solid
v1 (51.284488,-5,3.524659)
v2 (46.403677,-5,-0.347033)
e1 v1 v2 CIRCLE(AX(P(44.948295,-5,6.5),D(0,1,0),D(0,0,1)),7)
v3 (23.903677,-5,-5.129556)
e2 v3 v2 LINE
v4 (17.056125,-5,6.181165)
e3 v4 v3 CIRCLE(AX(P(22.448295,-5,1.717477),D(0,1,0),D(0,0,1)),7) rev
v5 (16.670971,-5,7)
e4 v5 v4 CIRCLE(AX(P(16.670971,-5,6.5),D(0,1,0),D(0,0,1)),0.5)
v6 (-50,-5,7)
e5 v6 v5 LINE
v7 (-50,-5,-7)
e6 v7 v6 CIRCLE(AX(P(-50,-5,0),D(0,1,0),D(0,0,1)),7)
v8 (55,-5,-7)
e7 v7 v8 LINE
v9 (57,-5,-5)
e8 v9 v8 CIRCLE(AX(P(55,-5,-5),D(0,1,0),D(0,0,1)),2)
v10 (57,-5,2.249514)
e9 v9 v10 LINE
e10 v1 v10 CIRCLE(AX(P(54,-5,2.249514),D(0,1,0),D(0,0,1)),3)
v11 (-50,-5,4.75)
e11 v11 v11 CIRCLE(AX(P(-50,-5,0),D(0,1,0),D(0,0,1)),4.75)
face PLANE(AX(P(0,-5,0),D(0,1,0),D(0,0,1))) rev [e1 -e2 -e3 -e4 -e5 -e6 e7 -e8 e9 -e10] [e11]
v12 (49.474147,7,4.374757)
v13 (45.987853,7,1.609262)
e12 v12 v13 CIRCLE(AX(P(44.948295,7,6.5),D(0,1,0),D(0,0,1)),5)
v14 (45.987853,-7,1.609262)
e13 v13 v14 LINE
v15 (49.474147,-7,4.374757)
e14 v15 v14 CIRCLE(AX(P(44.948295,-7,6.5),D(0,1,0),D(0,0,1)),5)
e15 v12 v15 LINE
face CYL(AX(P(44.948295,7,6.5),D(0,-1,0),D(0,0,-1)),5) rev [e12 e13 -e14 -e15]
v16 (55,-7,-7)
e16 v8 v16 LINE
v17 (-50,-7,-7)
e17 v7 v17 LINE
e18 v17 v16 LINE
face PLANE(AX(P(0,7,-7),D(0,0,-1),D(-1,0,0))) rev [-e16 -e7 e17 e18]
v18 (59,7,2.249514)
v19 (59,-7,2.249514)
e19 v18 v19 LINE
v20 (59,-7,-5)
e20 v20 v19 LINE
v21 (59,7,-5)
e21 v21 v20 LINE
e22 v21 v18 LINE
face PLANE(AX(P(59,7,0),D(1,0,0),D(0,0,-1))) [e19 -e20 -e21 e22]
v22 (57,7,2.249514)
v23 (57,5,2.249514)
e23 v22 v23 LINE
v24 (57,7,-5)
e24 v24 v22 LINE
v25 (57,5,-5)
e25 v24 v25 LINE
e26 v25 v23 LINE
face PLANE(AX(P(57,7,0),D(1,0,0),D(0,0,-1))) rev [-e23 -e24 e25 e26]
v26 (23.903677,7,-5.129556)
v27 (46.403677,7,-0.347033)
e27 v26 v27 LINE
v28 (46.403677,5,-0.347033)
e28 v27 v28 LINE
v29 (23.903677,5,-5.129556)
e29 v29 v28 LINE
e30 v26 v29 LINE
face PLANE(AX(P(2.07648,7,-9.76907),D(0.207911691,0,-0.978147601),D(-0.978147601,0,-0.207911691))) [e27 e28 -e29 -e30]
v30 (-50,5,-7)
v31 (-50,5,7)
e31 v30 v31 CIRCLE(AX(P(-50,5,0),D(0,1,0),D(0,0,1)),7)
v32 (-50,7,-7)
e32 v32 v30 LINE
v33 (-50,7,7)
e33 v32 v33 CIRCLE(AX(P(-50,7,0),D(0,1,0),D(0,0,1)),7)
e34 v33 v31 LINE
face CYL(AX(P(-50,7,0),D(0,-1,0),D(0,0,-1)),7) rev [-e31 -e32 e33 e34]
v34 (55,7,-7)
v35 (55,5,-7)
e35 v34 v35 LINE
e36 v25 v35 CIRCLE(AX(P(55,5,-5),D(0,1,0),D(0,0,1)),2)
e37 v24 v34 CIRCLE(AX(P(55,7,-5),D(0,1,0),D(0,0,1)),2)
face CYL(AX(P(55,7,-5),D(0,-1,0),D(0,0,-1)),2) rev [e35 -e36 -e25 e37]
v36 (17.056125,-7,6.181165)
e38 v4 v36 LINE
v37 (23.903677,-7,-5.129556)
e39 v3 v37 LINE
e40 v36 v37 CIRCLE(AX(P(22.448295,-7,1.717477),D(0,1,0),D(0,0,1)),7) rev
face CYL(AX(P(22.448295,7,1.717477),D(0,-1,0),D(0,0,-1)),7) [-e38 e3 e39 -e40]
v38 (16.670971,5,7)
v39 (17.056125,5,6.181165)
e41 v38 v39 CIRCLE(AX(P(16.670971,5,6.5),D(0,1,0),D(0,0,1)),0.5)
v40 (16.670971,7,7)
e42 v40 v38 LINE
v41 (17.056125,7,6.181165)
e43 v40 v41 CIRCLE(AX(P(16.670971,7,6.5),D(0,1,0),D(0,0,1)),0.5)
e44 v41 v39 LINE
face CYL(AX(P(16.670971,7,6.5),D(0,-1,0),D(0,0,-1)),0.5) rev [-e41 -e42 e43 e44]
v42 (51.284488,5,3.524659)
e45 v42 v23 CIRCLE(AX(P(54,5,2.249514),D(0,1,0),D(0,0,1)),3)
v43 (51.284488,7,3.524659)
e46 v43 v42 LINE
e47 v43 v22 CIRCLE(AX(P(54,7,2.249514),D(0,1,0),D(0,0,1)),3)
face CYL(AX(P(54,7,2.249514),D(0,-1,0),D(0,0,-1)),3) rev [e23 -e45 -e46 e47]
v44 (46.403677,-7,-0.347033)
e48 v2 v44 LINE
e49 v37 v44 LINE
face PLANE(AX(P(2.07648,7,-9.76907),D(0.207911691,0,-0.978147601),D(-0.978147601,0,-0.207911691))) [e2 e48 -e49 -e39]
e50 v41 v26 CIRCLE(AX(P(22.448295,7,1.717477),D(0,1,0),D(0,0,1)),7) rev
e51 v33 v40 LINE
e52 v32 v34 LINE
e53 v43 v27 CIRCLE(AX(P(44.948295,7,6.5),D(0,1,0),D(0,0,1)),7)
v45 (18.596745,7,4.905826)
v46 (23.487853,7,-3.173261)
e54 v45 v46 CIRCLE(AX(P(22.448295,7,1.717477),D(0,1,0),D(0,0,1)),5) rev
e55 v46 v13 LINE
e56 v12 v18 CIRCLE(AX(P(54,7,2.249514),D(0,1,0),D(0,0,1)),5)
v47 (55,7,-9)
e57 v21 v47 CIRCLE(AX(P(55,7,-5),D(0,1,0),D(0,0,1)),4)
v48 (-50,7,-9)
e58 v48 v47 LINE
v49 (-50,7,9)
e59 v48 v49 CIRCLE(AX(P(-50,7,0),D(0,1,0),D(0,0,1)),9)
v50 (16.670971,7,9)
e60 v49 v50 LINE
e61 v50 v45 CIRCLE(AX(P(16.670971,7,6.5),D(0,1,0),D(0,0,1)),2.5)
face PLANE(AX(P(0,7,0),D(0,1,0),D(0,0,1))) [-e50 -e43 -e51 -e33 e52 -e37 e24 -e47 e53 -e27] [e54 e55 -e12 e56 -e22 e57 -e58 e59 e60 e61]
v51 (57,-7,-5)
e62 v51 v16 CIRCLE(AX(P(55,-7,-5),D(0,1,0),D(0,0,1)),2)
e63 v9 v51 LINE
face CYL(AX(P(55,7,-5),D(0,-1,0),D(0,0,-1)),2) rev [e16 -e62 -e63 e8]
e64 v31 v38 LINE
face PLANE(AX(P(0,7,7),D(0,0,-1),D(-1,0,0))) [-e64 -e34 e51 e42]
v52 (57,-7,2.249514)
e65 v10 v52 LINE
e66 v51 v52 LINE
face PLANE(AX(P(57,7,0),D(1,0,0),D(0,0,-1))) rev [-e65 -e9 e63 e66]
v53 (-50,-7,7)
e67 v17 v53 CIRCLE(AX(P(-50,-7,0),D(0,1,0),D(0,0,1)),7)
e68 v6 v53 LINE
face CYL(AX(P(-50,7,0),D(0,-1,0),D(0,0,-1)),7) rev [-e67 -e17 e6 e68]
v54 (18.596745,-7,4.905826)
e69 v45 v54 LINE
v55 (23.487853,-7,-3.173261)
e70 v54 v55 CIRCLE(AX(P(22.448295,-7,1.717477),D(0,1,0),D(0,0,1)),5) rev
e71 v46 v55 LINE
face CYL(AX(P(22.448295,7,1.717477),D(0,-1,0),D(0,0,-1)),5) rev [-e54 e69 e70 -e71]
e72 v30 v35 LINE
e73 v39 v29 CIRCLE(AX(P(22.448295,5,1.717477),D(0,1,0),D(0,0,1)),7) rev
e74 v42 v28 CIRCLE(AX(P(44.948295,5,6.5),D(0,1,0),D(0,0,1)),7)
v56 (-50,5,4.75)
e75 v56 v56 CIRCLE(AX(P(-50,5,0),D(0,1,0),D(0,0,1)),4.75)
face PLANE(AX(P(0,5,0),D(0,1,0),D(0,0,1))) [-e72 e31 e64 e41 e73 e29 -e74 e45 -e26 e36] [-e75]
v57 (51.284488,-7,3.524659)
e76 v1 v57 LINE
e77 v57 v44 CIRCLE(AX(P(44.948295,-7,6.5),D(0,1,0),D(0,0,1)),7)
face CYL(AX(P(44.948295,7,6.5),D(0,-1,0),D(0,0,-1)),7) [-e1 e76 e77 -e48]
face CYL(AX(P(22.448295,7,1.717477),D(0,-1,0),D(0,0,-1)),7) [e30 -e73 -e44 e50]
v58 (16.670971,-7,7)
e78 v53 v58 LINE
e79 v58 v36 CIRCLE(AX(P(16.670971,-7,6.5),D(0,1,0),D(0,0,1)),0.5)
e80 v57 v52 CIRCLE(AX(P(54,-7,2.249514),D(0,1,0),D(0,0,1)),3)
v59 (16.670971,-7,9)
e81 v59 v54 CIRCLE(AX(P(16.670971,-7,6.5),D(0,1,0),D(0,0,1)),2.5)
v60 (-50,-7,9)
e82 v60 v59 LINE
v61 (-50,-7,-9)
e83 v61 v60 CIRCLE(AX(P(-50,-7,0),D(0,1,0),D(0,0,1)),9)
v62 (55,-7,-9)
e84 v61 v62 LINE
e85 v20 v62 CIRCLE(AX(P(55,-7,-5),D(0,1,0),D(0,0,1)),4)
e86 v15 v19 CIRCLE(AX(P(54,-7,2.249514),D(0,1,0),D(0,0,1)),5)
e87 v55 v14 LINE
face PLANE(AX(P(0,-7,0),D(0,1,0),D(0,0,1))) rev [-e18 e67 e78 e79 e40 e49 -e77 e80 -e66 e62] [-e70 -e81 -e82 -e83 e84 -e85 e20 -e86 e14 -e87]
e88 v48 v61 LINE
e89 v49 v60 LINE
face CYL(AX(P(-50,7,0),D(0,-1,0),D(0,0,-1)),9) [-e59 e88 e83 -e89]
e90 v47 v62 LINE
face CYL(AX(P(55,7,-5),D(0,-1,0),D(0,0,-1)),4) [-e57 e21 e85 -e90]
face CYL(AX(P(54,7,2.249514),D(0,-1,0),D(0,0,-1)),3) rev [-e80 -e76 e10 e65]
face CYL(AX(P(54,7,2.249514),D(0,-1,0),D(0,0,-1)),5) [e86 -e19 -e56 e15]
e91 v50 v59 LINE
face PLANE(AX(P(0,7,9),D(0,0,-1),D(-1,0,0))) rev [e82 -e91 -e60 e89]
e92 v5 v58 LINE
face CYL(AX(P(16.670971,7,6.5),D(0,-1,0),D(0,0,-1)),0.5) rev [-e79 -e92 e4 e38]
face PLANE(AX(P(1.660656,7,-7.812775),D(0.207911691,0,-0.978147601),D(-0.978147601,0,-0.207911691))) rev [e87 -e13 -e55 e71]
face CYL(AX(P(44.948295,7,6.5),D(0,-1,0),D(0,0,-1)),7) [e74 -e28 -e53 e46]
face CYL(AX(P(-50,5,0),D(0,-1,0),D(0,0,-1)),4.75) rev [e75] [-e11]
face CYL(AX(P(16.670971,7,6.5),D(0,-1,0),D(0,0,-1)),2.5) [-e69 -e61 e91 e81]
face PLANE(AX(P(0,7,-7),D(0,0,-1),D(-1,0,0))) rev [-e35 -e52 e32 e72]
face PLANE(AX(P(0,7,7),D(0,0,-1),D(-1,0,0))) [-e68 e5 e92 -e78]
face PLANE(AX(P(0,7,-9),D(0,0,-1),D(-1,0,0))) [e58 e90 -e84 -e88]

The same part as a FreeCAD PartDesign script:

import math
import FreeCAD as App
import Part
import Sketcher
Q = App.Units.Quantity

doc = App.newDocument("Part")
body = doc.addObject("PartDesign::Body", "Body")

# Sketch on XZ plane
sketch1 = body.newObject("Sketcher::SketchObject", "Sketch")
sketch1.AttachmentSupport = (doc.getObject("XZ_Plane"), [""])
sketch1.MapMode = "FlatFace"
sketch1.addGeometry(Part.ArcOfCircle(Part.Circle(App.Vector(44.9, 6.5, 0), App.Vector(0, 0, 1), 5), math.radians(-78), math.radians(-25)), False)
sketch1.addGeometry(Part.ArcOfCircle(Part.Circle(App.Vector(54, 2.2, 0), App.Vector(0, 0, 1), 5), math.radians(0), math.radians(155)), False)
sketch1.addGeometry(Part.LineSegment(App.Vector(59, 2.2, 0), App.Vector(59, -5, 0)), False)
sketch1.addGeometry(Part.ArcOfCircle(Part.Circle(App.Vector(55, -5, 0), App.Vector(0, 0, 1), 4), math.radians(-90), math.radians(0)), False)
sketch1.addGeometry(Part.LineSegment(App.Vector(55, -9, 0), App.Vector(-50, -9, 0)), False)
sketch1.addGeometry(Part.ArcOfCircle(Part.Circle(App.Vector(-50, 0, 0), App.Vector(0, 0, 1), 9), math.radians(90), math.radians(270)), False)
sketch1.addGeometry(Part.LineSegment(App.Vector(-50, 9, 0), App.Vector(16.7, 9, 0)), False)
sketch1.addGeometry(Part.ArcOfCircle(Part.Circle(App.Vector(16.7, 6.5, 0), App.Vector(0, 0, 1), 2.5), math.radians(-40), math.radians(90)), False)
sketch1.addGeometry(Part.ArcOfCircle(Part.Circle(App.Vector(22.4, 1.7, 0), App.Vector(0, 0, 1), 5), math.radians(140), math.radians(282)), False)
sketch1.addGeometry(Part.LineSegment(App.Vector(23.5, -3.2, 0), App.Vector(46, 1.6, 0)), False)
sketch1.addGeometry(Part.LineSegment(App.Vector(-50, -7, 0), App.Vector(55, -7, 0)), False)
sketch1.addGeometry(Part.ArcOfCircle(Part.Circle(App.Vector(55, -5, 0), App.Vector(0, 0, 1), 2), math.radians(-90), math.radians(0)), False)
sketch1.addGeometry(Part.LineSegment(App.Vector(57, -5, 0), App.Vector(57, 2.2, 0)), False)
sketch1.addGeometry(Part.ArcOfCircle(Part.Circle(App.Vector(54, 2.2, 0), App.Vector(0, 0, 1), 3), math.radians(0), math.radians(155)), False)
sketch1.addGeometry(Part.ArcOfCircle(Part.Circle(App.Vector(44.9, 6.5, 0), App.Vector(0, 0, 1), 7), math.radians(-78), math.radians(-25)), False)
sketch1.addGeometry(Part.LineSegment(App.Vector(46.4, -0.3, 0), App.Vector(23.9, -5.1, 0)), False)
sketch1.addGeometry(Part.ArcOfCircle(Part.Circle(App.Vector(22.4, 1.7, 0), App.Vector(0, 0, 1), 7), math.radians(140), math.radians(282)), False)
sketch1.addGeometry(Part.ArcOfCircle(Part.Circle(App.Vector(16.7, 6.5, 0), App.Vector(0, 0, 1), 0.5), math.radians(-40), math.radians(90)), False)
sketch1.addGeometry(Part.LineSegment(App.Vector(16.7, 7, 0), App.Vector(-50, 7, 0)), False)
sketch1.addGeometry(Part.ArcOfCircle(Part.Circle(App.Vector(-50, 0, 0), App.Vector(0, 0, 1), 7), math.radians(90), math.radians(270)), False)
sketch1.addConstraint(Sketcher.Constraint("Tangent", 0, 2, 1, 2))
sketch1.addConstraint(Sketcher.Constraint("Tangent", 1, 1, 2, 1))
sketch1.addConstraint(Sketcher.Constraint("Tangent", 2, 2, 3, 2))
sketch1.addConstraint(Sketcher.Constraint("Tangent", 3, 1, 4, 1))
sketch1.addConstraint(Sketcher.Constraint("Tangent", 4, 2, 5, 2))
sketch1.addConstraint(Sketcher.Constraint("Tangent", 5, 1, 6, 1))
sketch1.addConstraint(Sketcher.Constraint("Tangent", 6, 2, 7, 2))
sketch1.addConstraint(Sketcher.Constraint("Tangent", 7, 1, 8, 1))
sketch1.addConstraint(Sketcher.Constraint("Tangent", 8, 2, 9, 1))
sketch1.addConstraint(Sketcher.Constraint("Tangent", 9, 2, 0, 1))
sketch1.addConstraint(Sketcher.Constraint("Tangent", 10, 2, 11, 1))
sketch1.addConstraint(Sketcher.Constraint("Tangent", 11, 2, 12, 1))
sketch1.addConstraint(Sketcher.Constraint("Tangent", 12, 2, 13, 1))
sketch1.addConstraint(Sketcher.Constraint("Tangent", 13, 2, 14, 2))
sketch1.addConstraint(Sketcher.Constraint("Tangent", 14, 1, 15, 1))
sketch1.addConstraint(Sketcher.Constraint("Tangent", 15, 2, 16, 2))
sketch1.addConstraint(Sketcher.Constraint("Tangent", 16, 1, 17, 1))
sketch1.addConstraint(Sketcher.Constraint("Tangent", 17, 2, 18, 1))
sketch1.addConstraint(Sketcher.Constraint("Tangent", 18, 2, 19, 1))
sketch1.addConstraint(Sketcher.Constraint("Tangent", 19, 2, 10, 1))
sketch1.addConstraint(Sketcher.Constraint("Vertical", 2))
sketch1.addConstraint(Sketcher.Constraint("Horizontal", 4))
sketch1.addConstraint(Sketcher.Constraint("Horizontal", 6))
sketch1.addConstraint(Sketcher.Constraint("Horizontal", 10))
sketch1.addConstraint(Sketcher.Constraint("Vertical", 12))
sketch1.addConstraint(Sketcher.Constraint("Horizontal", 18))
sketch1.addConstraint(Sketcher.Constraint("Coincident", 11, 3, 3, 3))
sketch1.addConstraint(Sketcher.Constraint("Coincident", 13, 3, 1, 3))
sketch1.addConstraint(Sketcher.Constraint("Coincident", 14, 3, 0, 3))
sketch1.addConstraint(Sketcher.Constraint("Coincident", 16, 3, 8, 3))
sketch1.addConstraint(Sketcher.Constraint("Coincident", 17, 3, 7, 3))
sketch1.addConstraint(Sketcher.Constraint("Coincident", 19, 3, 5, 3))
sketch1.addConstraint(Sketcher.Constraint("Equal", 0, 1))
sketch1.addConstraint(Sketcher.Constraint("Equal", 1, 8))
sketch1.addConstraint(Sketcher.Constraint("Equal", 16, 19))
sketch1.addConstraint(Sketcher.Constraint("PointOnObject", 5, 3, -1))
sketch1.addConstraint(Sketcher.Constraint("Horizontal", 0, 3, 7, 3))
sketch1.addConstraint(Sketcher.Constraint("Radius", 0, 5.0))
sketch1.addConstraint(Sketcher.Constraint("Radius", 3, 4.0))
sketch1.addConstraint(Sketcher.Constraint("Radius", 5, 9.0))
sketch1.addConstraint(Sketcher.Constraint("Radius", 7, 2.5))
sketch1.addConstraint(Sketcher.Constraint("DistanceX", 4, 2, 4, 1, 105.0))
sketch1.addConstraint(Sketcher.Constraint("Angle", 9, Q("12 deg")))
sketch1.addConstraint(Sketcher.Constraint("DistanceX", -1, 1, 1, 3, 54.0))
sketch1.addConstraint(Sketcher.Constraint("DistanceX", 8, 3, 0, 3, 22.5))
sketch1.addConstraint(Sketcher.Constraint("DistanceX", 6, 1, 6, 2, 66.670971))
pad1 = body.newObject("PartDesign::Pad", "Pad")
pad1.Profile = sketch1
pad1.Length = 14
pad1.Midplane = True

# Sketch on XZ plane
sketch2 = body.newObject("Sketcher::SketchObject", "Sketch001")
sketch2.AttachmentSupport = (doc.getObject("XZ_Plane"), [""])
sketch2.MapMode = "FlatFace"
sketch2.addGeometry(Part.LineSegment(App.Vector(55, -7, 0), App.Vector(-50, -7, 0)), False)
sketch2.addGeometry(Part.ArcOfCircle(Part.Circle(App.Vector(-50, 0, 0), App.Vector(0, 0, 1), 7), math.radians(90), math.radians(270)), False)
sketch2.addGeometry(Part.LineSegment(App.Vector(-50, 7, 0), App.Vector(16.7, 7, 0)), False)
sketch2.addGeometry(Part.ArcOfCircle(Part.Circle(App.Vector(16.7, 6.5, 0), App.Vector(0, 0, 1), 0.5), math.radians(-40), math.radians(90)), False)
sketch2.addGeometry(Part.ArcOfCircle(Part.Circle(App.Vector(22.4, 1.7, 0), App.Vector(0, 0, 1), 7), math.radians(140), math.radians(282)), False)
sketch2.addGeometry(Part.LineSegment(App.Vector(23.9, -5.1, 0), App.Vector(46.4, -0.3, 0)), False)
sketch2.addGeometry(Part.ArcOfCircle(Part.Circle(App.Vector(44.9, 6.5, 0), App.Vector(0, 0, 1), 7), math.radians(-78), math.radians(-25)), False)
sketch2.addGeometry(Part.ArcOfCircle(Part.Circle(App.Vector(54, 2.2, 0), App.Vector(0, 0, 1), 3), math.radians(0), math.radians(155)), False)
sketch2.addGeometry(Part.LineSegment(App.Vector(57, 2.2, 0), App.Vector(57, -5, 0)), False)
sketch2.addGeometry(Part.ArcOfCircle(Part.Circle(App.Vector(55, -5, 0), App.Vector(0, 0, 1), 2), math.radians(-90), math.radians(0)), False)
sketch2.addGeometry(Part.Circle(App.Vector(-50, 0, 0), App.Vector(0, 0, 1), 4.8), False)
sketch2.addConstraint(Sketcher.Constraint("Tangent", 0, 2, 1, 2))
sketch2.addConstraint(Sketcher.Constraint("Tangent", 1, 1, 2, 1))
sketch2.addConstraint(Sketcher.Constraint("Tangent", 2, 2, 3, 2))
sketch2.addConstraint(Sketcher.Constraint("Tangent", 3, 1, 4, 1))
sketch2.addConstraint(Sketcher.Constraint("Tangent", 4, 2, 5, 1))
sketch2.addConstraint(Sketcher.Constraint("Tangent", 5, 2, 6, 1))
sketch2.addConstraint(Sketcher.Constraint("Tangent", 6, 2, 7, 2))
sketch2.addConstraint(Sketcher.Constraint("Tangent", 7, 1, 8, 1))
sketch2.addConstraint(Sketcher.Constraint("Tangent", 8, 2, 9, 2))
sketch2.addConstraint(Sketcher.Constraint("Tangent", 9, 1, 0, 1))
sketch2.addConstraint(Sketcher.Constraint("Horizontal", 0))
sketch2.addConstraint(Sketcher.Constraint("Horizontal", 2))
sketch2.addConstraint(Sketcher.Constraint("Vertical", 8))
sketch2.addConstraint(Sketcher.Constraint("Coincident", 10, 3, 1, 3))
sketch2.addConstraint(Sketcher.Constraint("Equal", 1, 4))
sketch2.addConstraint(Sketcher.Constraint("Equal", 4, 6))
sketch2.addConstraint(Sketcher.Constraint("PointOnObject", 1, 3, -1))
sketch2.addConstraint(Sketcher.Constraint("Horizontal", 3, 3, 6, 3))
sketch2.addConstraint(Sketcher.Constraint("Radius", 1, 7.0))
sketch2.addConstraint(Sketcher.Constraint("Radius", 7, 3.0))
sketch2.addConstraint(Sketcher.Constraint("Radius", 9, 2.0))
sketch2.addConstraint(Sketcher.Constraint("Diameter", 10, 9.5))
sketch2.addConstraint(Sketcher.Constraint("Radius", 3, 0.5))
sketch2.addConstraint(Sketcher.Constraint("DistanceX", 0, 2, 0, 1, 105.0))
sketch2.addConstraint(Sketcher.Constraint("Angle", 5, Q("12 deg")))
sketch2.addConstraint(Sketcher.Constraint("DistanceX", 1, 3, -1, 1, 50.0))
sketch2.addConstraint(Sketcher.Constraint("DistanceX", 4, 3, 6, 3, 22.5))
sketch2.addConstraint(Sketcher.Constraint("DistanceX", 2, 1, 2, 2, 66.670971))
pad2 = body.newObject("PartDesign::Pad", "Pad001")
pad2.Profile = sketch2
pad2.Length = 10
pad2.Midplane = True

doc.recompute()
